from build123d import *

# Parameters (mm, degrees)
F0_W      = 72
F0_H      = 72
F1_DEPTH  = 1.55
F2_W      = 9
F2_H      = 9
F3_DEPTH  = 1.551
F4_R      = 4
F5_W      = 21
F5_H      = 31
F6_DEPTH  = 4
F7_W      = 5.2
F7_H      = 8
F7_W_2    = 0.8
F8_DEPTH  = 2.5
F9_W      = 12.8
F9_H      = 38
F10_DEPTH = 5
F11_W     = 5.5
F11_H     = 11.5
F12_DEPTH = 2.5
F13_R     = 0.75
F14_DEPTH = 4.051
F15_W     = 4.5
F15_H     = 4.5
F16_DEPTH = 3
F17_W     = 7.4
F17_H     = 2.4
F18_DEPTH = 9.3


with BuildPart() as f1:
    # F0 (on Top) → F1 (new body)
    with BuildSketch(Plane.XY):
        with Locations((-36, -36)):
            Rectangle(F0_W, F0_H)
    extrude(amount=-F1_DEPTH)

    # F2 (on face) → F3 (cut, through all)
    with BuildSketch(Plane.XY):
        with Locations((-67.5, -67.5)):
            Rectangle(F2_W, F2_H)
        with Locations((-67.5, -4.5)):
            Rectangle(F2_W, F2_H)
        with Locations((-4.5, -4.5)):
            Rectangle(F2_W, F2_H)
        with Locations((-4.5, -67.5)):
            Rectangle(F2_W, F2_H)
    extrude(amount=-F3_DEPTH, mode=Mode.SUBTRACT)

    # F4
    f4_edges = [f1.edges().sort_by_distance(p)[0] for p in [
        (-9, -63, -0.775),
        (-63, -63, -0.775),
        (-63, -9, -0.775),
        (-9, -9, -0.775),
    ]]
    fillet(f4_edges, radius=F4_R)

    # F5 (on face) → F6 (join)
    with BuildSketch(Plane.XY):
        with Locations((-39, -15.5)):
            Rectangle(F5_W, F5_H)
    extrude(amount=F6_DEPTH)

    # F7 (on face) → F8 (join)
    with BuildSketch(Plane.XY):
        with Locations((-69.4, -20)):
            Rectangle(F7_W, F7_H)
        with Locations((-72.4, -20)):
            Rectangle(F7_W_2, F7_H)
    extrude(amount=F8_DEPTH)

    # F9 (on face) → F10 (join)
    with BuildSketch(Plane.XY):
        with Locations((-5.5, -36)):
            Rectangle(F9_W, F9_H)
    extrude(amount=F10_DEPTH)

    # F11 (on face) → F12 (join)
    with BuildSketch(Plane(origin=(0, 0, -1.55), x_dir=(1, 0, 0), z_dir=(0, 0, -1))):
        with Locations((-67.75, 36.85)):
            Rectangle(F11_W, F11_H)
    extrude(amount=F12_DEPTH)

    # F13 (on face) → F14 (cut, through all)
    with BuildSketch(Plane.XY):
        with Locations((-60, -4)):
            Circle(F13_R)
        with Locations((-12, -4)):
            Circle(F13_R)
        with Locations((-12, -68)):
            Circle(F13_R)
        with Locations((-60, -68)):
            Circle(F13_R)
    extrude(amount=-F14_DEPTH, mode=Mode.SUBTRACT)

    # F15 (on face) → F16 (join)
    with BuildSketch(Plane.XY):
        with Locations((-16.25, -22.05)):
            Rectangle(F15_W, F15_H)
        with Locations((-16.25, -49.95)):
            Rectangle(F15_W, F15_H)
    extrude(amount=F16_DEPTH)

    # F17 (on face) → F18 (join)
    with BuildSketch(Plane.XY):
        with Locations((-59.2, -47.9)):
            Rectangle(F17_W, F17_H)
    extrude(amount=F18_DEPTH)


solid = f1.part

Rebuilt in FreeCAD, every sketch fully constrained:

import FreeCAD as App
import Part
import Sketcher
Q = App.Units.Quantity


def edges_at(feature, points):
    """Names of the edges that pass closest to the given points."""
    edges = feature.Shape.Edges
    near = lambda p: min(range(len(edges)), key=lambda i: edges[i].distToShape(Part.Vertex(*p))[0])
    return sorted({f"Edge{near(p) + 1}" for p in points})

doc = App.newDocument("Part")
body = doc.addObject("PartDesign::Body", "Body")

# Sketch on XY plane
sketch1 = body.newObject("Sketcher::SketchObject", "Sketch")
sketch1.AttachmentSupport = (doc.getObject("XY_Plane"), [""])
sketch1.MapMode = "FlatFace"
sketch1.addGeometry([
    Part.LineSegment(App.Vector(-72, 0, 0), App.Vector(-72, -72, 0)),
    Part.LineSegment(App.Vector(-72, -72, 0), App.Vector(0, -72, 0)),
    Part.LineSegment(App.Vector(0, -72, 0), App.Vector(0, 0, 0)),
    Part.LineSegment(App.Vector(0, 0, 0), App.Vector(-72, 0, 0)),
], False)
sketch1.addConstraint([
    Sketcher.Constraint("Coincident", 0, 2, 1, 1),
    Sketcher.Constraint("Coincident", 1, 2, 2, 1),
    Sketcher.Constraint("Coincident", 2, 2, 3, 1),
    Sketcher.Constraint("Coincident", 3, 2, 0, 1),
    Sketcher.Constraint("Vertical", 0),
    Sketcher.Constraint("Horizontal", 1),
    Sketcher.Constraint("Vertical", 2),
    Sketcher.Constraint("Horizontal", 3),
    Sketcher.Constraint("Coincident", 2, 2, -1, 1),
    Sketcher.Constraint("Equal", 3, 0),
    Sketcher.Constraint("DistanceX", 1, 1, 1, 2, Q("72 mm")),
])
pad1 = body.newObject("PartDesign::Pad", "Pad")
pad1.Profile = sketch1
pad1.Length = 1.55
pad1.Reversed = True

# Sketch on XY plane
sketch2 = body.newObject("Sketcher::SketchObject", "Sketch001")
sketch2.AttachmentSupport = (doc.getObject("XY_Plane"), [""])
sketch2.MapMode = "FlatFace"
sketch2.addGeometry([
    Part.LineSegment(App.Vector(-72, -63, 0), App.Vector(-72, -72, 0)),  # 0
    Part.LineSegment(App.Vector(-72, -72, 0), App.Vector(-63, -72, 0)),  # 1
    Part.LineSegment(App.Vector(-63, -72, 0), App.Vector(-63, -63, 0)),  # 2
    Part.LineSegment(App.Vector(-63, -63, 0), App.Vector(-72, -63, 0)),  # 3
    Part.LineSegment(App.Vector(-72, 0, 0), App.Vector(-72, -9, 0)),  # 4
    Part.LineSegment(App.Vector(-72, -9, 0), App.Vector(-63, -9, 0)),  # 5
    Part.LineSegment(App.Vector(-63, -9, 0), App.Vector(-63, 0, 0)),  # 6
    Part.LineSegment(App.Vector(-63, 0, 0), App.Vector(-72, 0, 0)),  # 7
    Part.LineSegment(App.Vector(-9, 0, 0), App.Vector(-9, -9, 0)),  # 8
    Part.LineSegment(App.Vector(-9, -9, 0), App.Vector(0, -9, 0)),  # 9
    Part.LineSegment(App.Vector(0, -9, 0), App.Vector(0, 0, 0)),  # 10
    Part.LineSegment(App.Vector(0, 0, 0), App.Vector(-9, 0, 0)),  # 11
    Part.LineSegment(App.Vector(-9, -63, 0), App.Vector(-9, -72, 0)),  # 12
    Part.LineSegment(App.Vector(-9, -72, 0), App.Vector(0, -72, 0)),  # 13
    Part.LineSegment(App.Vector(0, -72, 0), App.Vector(0, -63, 0)),  # 14
    Part.LineSegment(App.Vector(0, -63, 0), App.Vector(-9, -63, 0)),  # 15
], False)
sketch2.addConstraint([
    Sketcher.Constraint("Coincident", 0, 2, 1, 1),
    Sketcher.Constraint("Coincident", 1, 2, 2, 1),
    Sketcher.Constraint("Coincident", 2, 2, 3, 1),
    Sketcher.Constraint("Coincident", 3, 2, 0, 1),
    Sketcher.Constraint("Coincident", 4, 2, 5, 1),
    Sketcher.Constraint("Coincident", 5, 2, 6, 1),
    Sketcher.Constraint("Coincident", 6, 2, 7, 1),
    Sketcher.Constraint("Coincident", 7, 2, 4, 1),
    Sketcher.Constraint("Coincident", 8, 2, 9, 1),
    Sketcher.Constraint("Coincident", 9, 2, 10, 1),
    Sketcher.Constraint("Coincident", 10, 2, 11, 1),
    Sketcher.Constraint("Coincident", 11, 2, 8, 1),
    Sketcher.Constraint("Coincident", 12, 2, 13, 1),
    Sketcher.Constraint("Coincident", 13, 2, 14, 1),
    Sketcher.Constraint("Coincident", 14, 2, 15, 1),
    Sketcher.Constraint("Coincident", 15, 2, 12, 1),
    Sketcher.Constraint("Vertical", 0),
    Sketcher.Constraint("Horizontal", 1),
    Sketcher.Constraint("Vertical", 2),
    Sketcher.Constraint("Horizontal", 3),
    Sketcher.Constraint("Vertical", 4),
    Sketcher.Constraint("Horizontal", 5),
    Sketcher.Constraint("Vertical", 6),
    Sketcher.Constraint("Horizontal", 7),
    Sketcher.Constraint("Vertical", 8),
    Sketcher.Constraint("Horizontal", 9),
    Sketcher.Constraint("Vertical", 10),
    Sketcher.Constraint("Horizontal", 11),
    Sketcher.Constraint("Vertical", 12),
    Sketcher.Constraint("Horizontal", 13),
    Sketcher.Constraint("Vertical", 14),
    Sketcher.Constraint("Horizontal", 15),
    Sketcher.Constraint("Coincident", 10, 2, -1, 1),
    Sketcher.Constraint("PointOnObject", 6, 2, -1),
    Sketcher.Constraint("PointOnObject", 13, 2, -2),
    Sketcher.Constraint("Horizontal", 5, 2, 8, 2),
    Sketcher.Constraint("Horizontal", 1, 2, 12, 2),
    Sketcher.Constraint("Horizontal", 3, 2, 14, 2),
    Sketcher.Constraint("Vertical", 3, 2, 4, 2),
    Sketcher.Constraint("Vertical", 2, 2, 5, 2),
    Sketcher.Constraint("Vertical", 11, 2, 12, 2),
    Sketcher.Constraint("Equal", 7, 9),
    Sketcher.Constraint("Equal", 15, 0),
    Sketcher.Constraint("Equal", 2, 4),
    Sketcher.Constraint("DistanceX", 1, 1, 1, 2, Q("9 mm")),
    Sketcher.Constraint("DistanceX", 0, 2, -1, 1, Q("72 mm")),
    Sketcher.Constraint("DistanceY", 0, 2, -1, 1, Q("72 mm")),
])
pocket1 = body.newObject("PartDesign::Pocket", "Pocket")
pocket1.Profile = sketch2
pocket1.Type = "ThroughAll"
doc.recompute()

fillet = body.newObject("PartDesign::Fillet", "Fillet")
fillet.Base = (pocket1, edges_at(pocket1, [
    (-9, -63, -0.775),
    (-63, -63, -0.775),
    (-63, -9, -0.775),
    (-9, -9, -0.775),
]))
fillet.Radius = 4

# Sketch on XY plane
sketch3 = body.newObject("Sketcher::SketchObject", "Sketch002")
sketch3.AttachmentSupport = (doc.getObject("XY_Plane"), [""])
sketch3.MapMode = "FlatFace"
sketch3.addGeometry([
    Part.LineSegment(App.Vector(-49.5, 0, 0), App.Vector(-49.5, -31, 0)),
    Part.LineSegment(App.Vector(-49.5, -31, 0), App.Vector(-28.5, -31, 0)),
    Part.LineSegment(App.Vector(-28.5, -31, 0), App.Vector(-28.5, 0, 0)),
    Part.LineSegment(App.Vector(-28.5, 0, 0), App.Vector(-49.5, 0, 0)),
], False)
sketch3.addConstraint([
    Sketcher.Constraint("Coincident", 0, 2, 1, 1),
    Sketcher.Constraint("Coincident", 1, 2, 2, 1),
    Sketcher.Constraint("Coincident", 2, 2, 3, 1),
    Sketcher.Constraint("Coincident", 3, 2, 0, 1),
    Sketcher.Constraint("Vertical", 0),
    Sketcher.Constraint("Horizontal", 1),
    Sketcher.Constraint("Vertical", 2),
    Sketcher.Constraint("Horizontal", 3),
    Sketcher.Constraint("PointOnObject", 2, 2, -1),
    Sketcher.Constraint("DistanceX", 1, 1, 1, 2, Q("21 mm")),
    Sketcher.Constraint("DistanceY", 0, 2, 0, 1, Q("31 mm")),
    Sketcher.Constraint("DistanceX", 0, 2, -1, 1, Q("49.5 mm")),
])
pad2 = body.newObject("PartDesign::Pad", "Pad001")
pad2.Profile = sketch3
pad2.Length = 4

# Sketch on XY plane
sketch4 = body.newObject("Sketcher::SketchObject", "Sketch003")
sketch4.AttachmentSupport = (doc.getObject("XY_Plane"), [""])
sketch4.MapMode = "FlatFace"
sketch4.addGeometry([
    Part.LineSegment(App.Vector(-66.8, -24, 0), App.Vector(-66.8, -16, 0)),
    Part.LineSegment(App.Vector(-66.8, -16, 0), App.Vector(-72.8, -16, 0)),
    Part.LineSegment(App.Vector(-72.8, -16, 0), App.Vector(-72.8, -24, 0)),
    Part.LineSegment(App.Vector(-72.8, -24, 0), App.Vector(-66.8, -24, 0)),
], False)
sketch4.addConstraint([
    Sketcher.Constraint("Coincident", 0, 2, 1, 1),
    Sketcher.Constraint("Coincident", 1, 2, 2, 1),
    Sketcher.Constraint("Coincident", 2, 2, 3, 1),
    Sketcher.Constraint("Coincident", 3, 2, 0, 1),
    Sketcher.Constraint("Vertical", 0),
    Sketcher.Constraint("Horizontal", 1),
    Sketcher.Constraint("Vertical", 2),
    Sketcher.Constraint("Horizontal", 3),
    Sketcher.Constraint("DistanceX", 1, 2, 1, 1, Q("6 mm")),
    Sketcher.Constraint("DistanceY", 0, 1, 0, 2, Q("8 mm")),
    Sketcher.Constraint("DistanceY", 0, 2, -1, 1, Q("16 mm")),
    Sketcher.Constraint("DistanceX", 0, 2, -1, 1, Q("66.8 mm")),
])
pad3 = body.newObject("PartDesign::Pad", "Pad002")
pad3.Profile = sketch4
pad3.Length = 2.5

# Sketch on XY plane
sketch5 = body.newObject("Sketcher::SketchObject", "Sketch004")
sketch5.AttachmentSupport = (doc.getObject("XY_Plane"), [""])
sketch5.MapMode = "FlatFace"
sketch5.addGeometry([
    Part.LineSegment(App.Vector(-11.9, -17, 0), App.Vector(-11.9, -55, 0)),
    Part.LineSegment(App.Vector(-11.9, -55, 0), App.Vector(0.9, -55, 0)),
    Part.LineSegment(App.Vector(0.9, -55, 0), App.Vector(0.9, -17, 0)),
    Part.LineSegment(App.Vector(0.9, -17, 0), App.Vector(-11.9, -17, 0)),
], False)
sketch5.addConstraint([
    Sketcher.Constraint("Coincident", 0, 2, 1, 1),
    Sketcher.Constraint("Coincident", 1, 2, 2, 1),
    Sketcher.Constraint("Coincident", 2, 2, 3, 1),
    Sketcher.Constraint("Coincident", 3, 2, 0, 1),
    Sketcher.Constraint("Vertical", 0),
    Sketcher.Constraint("Horizontal", 1),
    Sketcher.Constraint("Vertical", 2),
    Sketcher.Constraint("Horizontal", 3),
    Sketcher.Constraint("DistanceY", 0, 2, 0, 1, Q("38 mm")),
    Sketcher.Constraint("DistanceX", 1, 1, 1, 2, Q("12.8 mm")),
    Sketcher.Constraint("DistanceY", 0, 2, -1, 1, Q("55 mm")),
    Sketcher.Constraint("DistanceX", 0, 2, -1, 1, Q("11.9 mm")),
])
pad4 = body.newObject("PartDesign::Pad", "Pad003")
pad4.Profile = sketch5
pad4.Length = 5

# Sketch on XY plane
sketch6 = body.newObject("Sketcher::SketchObject", "Sketch005")
sketch6.AttachmentSupport = (doc.getObject("XY_Plane"), [""])
sketch6.MapMode = "FlatFace"
sketch6.AttachmentOffset = App.Placement(App.Vector(0, 0, -1.55), App.Rotation())
sketch6.addGeometry([
    Part.LineSegment(App.Vector(-70.5, -42.6, 0), App.Vector(-70.5, -31.1, 0)),
    Part.LineSegment(App.Vector(-70.5, -31.1, 0), App.Vector(-65, -31.1, 0)),
    Part.LineSegment(App.Vector(-65, -31.1, 0), App.Vector(-65, -42.6, 0)),
    Part.LineSegment(App.Vector(-65, -42.6, 0), App.Vector(-70.5, -42.6, 0)),
], False)
sketch6.addConstraint([
    Sketcher.Constraint("Coincident", 0, 2, 1, 1),
    Sketcher.Constraint("Coincident", 1, 2, 2, 1),
    Sketcher.Constraint("Coincident", 2, 2, 3, 1),
    Sketcher.Constraint("Coincident", 3, 2, 0, 1),
    Sketcher.Constraint("Vertical", 0),
    Sketcher.Constraint("Horizontal", 1),
    Sketcher.Constraint("Vertical", 2),
    Sketcher.Constraint("Horizontal", 3),
    Sketcher.Constraint("DistanceX", 1, 1, 1, 2, Q("5.5 mm")),
    Sketcher.Constraint("DistanceY", 0, 1, 0, 2, Q("11.5 mm")),
    Sketcher.Constraint("DistanceX", 1, 2, -1, 1, Q("65 mm")),
    Sketcher.Constraint("DistanceY", 0, 2, -1, 1, Q("31.1 mm")),
])
pad5 = body.newObject("PartDesign::Pad", "Pad004")
pad5.Profile = sketch6
pad5.Length = 2.5
pad5.Reversed = True

# Sketch on XY plane
sketch7 = body.newObject("Sketcher::SketchObject", "Sketch006")
sketch7.AttachmentSupport = (doc.getObject("XY_Plane"), [""])
sketch7.MapMode = "FlatFace"
sketch7.addGeometry([
    Part.Circle(App.Vector(-60, -4, 0), App.Vector(0, 0, 1), 0.75),
    Part.Circle(App.Vector(-12, -4, 0), App.Vector(0, 0, 1), 0.75),
    Part.Circle(App.Vector(-12, -68, 0), App.Vector(0, 0, 1), 0.75),
    Part.Circle(App.Vector(-60, -68, 0), App.Vector(0, 0, 1), 0.75),
], False)
sketch7.addConstraint([
    Sketcher.Constraint("Equal", 0, 1),
    Sketcher.Constraint("Equal", 1, 2),
    Sketcher.Constraint("Equal", 2, 3),
    Sketcher.Constraint("Horizontal", 0, 3, 1, 3),
    Sketcher.Constraint("Horizontal", 2, 3, 3, 3),
    Sketcher.Constraint("Vertical", 1, 3, 2, 3),
    Sketcher.Constraint("Vertical", 0, 3, 3, 3),
    Sketcher.Constraint("Diameter", 0, Q("1.5 mm")),
    Sketcher.Constraint("DistanceX", 0, 3, -1, 1, Q("60 mm")),
    Sketcher.Constraint("DistanceY", 0, 3, -1, 1, Q("4 mm")),
    Sketcher.Constraint("DistanceX", 1, 3, -1, 1, Q("12 mm")),
    Sketcher.Constraint("DistanceY", 2, 3, -1, 1, Q("68 mm")),
])
pocket2 = body.newObject("PartDesign::Pocket", "Pocket001")
pocket2.Profile = sketch7
pocket2.Type = "ThroughAll"

# Sketch on XY plane
sketch8 = body.newObject("Sketcher::SketchObject", "Sketch007")
sketch8.AttachmentSupport = (doc.getObject("XY_Plane"), [""])
sketch8.MapMode = "FlatFace"
sketch8.addGeometry([
    Part.LineSegment(App.Vector(-18.5, -19.8, 0), App.Vector(-18.5, -24.3, 0)),  # 0
    Part.LineSegment(App.Vector(-18.5, -24.3, 0), App.Vector(-14, -24.3, 0)),  # 1
    Part.LineSegment(App.Vector(-14, -24.3, 0), App.Vector(-14, -19.8, 0)),  # 2
    Part.LineSegment(App.Vector(-14, -19.8, 0), App.Vector(-18.5, -19.8, 0)),  # 3
    Part.LineSegment(App.Vector(-18.5, -47.7, 0), App.Vector(-18.5, -52.2, 0)),  # 4
    Part.LineSegment(App.Vector(-18.5, -52.2, 0), App.Vector(-14, -52.2, 0)),  # 5
    Part.LineSegment(App.Vector(-14, -52.2, 0), App.Vector(-14, -47.7, 0)),  # 6
    Part.LineSegment(App.Vector(-14, -47.7, 0), App.Vector(-18.5, -47.7, 0)),  # 7
], False)
sketch8.addConstraint([
    Sketcher.Constraint("Coincident", 0, 2, 1, 1),
    Sketcher.Constraint("Coincident", 1, 2, 2, 1),
    Sketcher.Constraint("Coincident", 2, 2, 3, 1),
    Sketcher.Constraint("Coincident", 3, 2, 0, 1),
    Sketcher.Constraint("Coincident", 4, 2, 5, 1),
    Sketcher.Constraint("Coincident", 5, 2, 6, 1),
    Sketcher.Constraint("Coincident", 6, 2, 7, 1),
    Sketcher.Constraint("Coincident", 7, 2, 4, 1),
    Sketcher.Constraint("Vertical", 0),
    Sketcher.Constraint("Horizontal", 1),
    Sketcher.Constraint("Vertical", 2),
    Sketcher.Constraint("Horizontal", 3),
    Sketcher.Constraint("Vertical", 4),
    Sketcher.Constraint("Horizontal", 5),
    Sketcher.Constraint("Vertical", 6),
    Sketcher.Constraint("Horizontal", 7),
    Sketcher.Constraint("Vertical", 3, 2, 4, 2),
    Sketcher.Constraint("Vertical", 2, 2, 5, 2),
    Sketcher.Constraint("Equal", 7, 0),
    Sketcher.Constraint("Equal", 2, 4),
    Sketcher.Constraint("DistanceX", 1, 1, 1, 2, Q("4.5 mm")),
    Sketcher.Constraint("DistanceX", 1, 2, -1, 1, Q("14 mm")),
    Sketcher.Constraint("DistanceY", 0, 2, -1, 1, Q("24.3 mm")),
    Sketcher.Constraint("DistanceY", 4, 2, -1, 1, Q("52.2 mm")),
])
pad6 = body.newObject("PartDesign::Pad", "Pad005")
pad6.Profile = sketch8
pad6.Length = 3

# Sketch on XY plane
sketch9 = body.newObject("Sketcher::SketchObject", "Sketch008")
sketch9.AttachmentSupport = (doc.getObject("XY_Plane"), [""])
sketch9.MapMode = "FlatFace"
sketch9.addGeometry([
    Part.LineSegment(App.Vector(-62.9, -46.7, 0), App.Vector(-62.9, -49.1, 0)),
    Part.LineSegment(App.Vector(-62.9, -49.1, 0), App.Vector(-55.5, -49.1, 0)),
    Part.LineSegment(App.Vector(-55.5, -49.1, 0), App.Vector(-55.5, -46.7, 0)),
    Part.LineSegment(App.Vector(-55.5, -46.7, 0), App.Vector(-62.9, -46.7, 0)),
], False)
sketch9.addConstraint([
    Sketcher.Constraint("Coincident", 0, 2, 1, 1),
    Sketcher.Constraint("Coincident", 1, 2, 2, 1),
    Sketcher.Constraint("Coincident", 2, 2, 3, 1),
    Sketcher.Constraint("Coincident", 3, 2, 0, 1),
    Sketcher.Constraint("Vertical", 0),
    Sketcher.Constraint("Horizontal", 1),
    Sketcher.Constraint("Vertical", 2),
    Sketcher.Constraint("Horizontal", 3),
    Sketcher.Constraint("DistanceX", 1, 1, 1, 2, Q("7.4 mm")),
    Sketcher.Constraint("DistanceY", 0, 2, 0, 1, Q("2.4 mm")),
    Sketcher.Constraint("DistanceX", 0, 2, -1, 1, Q("62.9 mm")),
    Sketcher.Constraint("DistanceY", 0, 2, -1, 1, Q("49.1 mm")),
])
pad7 = body.newObject("PartDesign::Pad", "Pad006")
pad7.Profile = sketch9
pad7.Length = 9.3

doc.recompute()
